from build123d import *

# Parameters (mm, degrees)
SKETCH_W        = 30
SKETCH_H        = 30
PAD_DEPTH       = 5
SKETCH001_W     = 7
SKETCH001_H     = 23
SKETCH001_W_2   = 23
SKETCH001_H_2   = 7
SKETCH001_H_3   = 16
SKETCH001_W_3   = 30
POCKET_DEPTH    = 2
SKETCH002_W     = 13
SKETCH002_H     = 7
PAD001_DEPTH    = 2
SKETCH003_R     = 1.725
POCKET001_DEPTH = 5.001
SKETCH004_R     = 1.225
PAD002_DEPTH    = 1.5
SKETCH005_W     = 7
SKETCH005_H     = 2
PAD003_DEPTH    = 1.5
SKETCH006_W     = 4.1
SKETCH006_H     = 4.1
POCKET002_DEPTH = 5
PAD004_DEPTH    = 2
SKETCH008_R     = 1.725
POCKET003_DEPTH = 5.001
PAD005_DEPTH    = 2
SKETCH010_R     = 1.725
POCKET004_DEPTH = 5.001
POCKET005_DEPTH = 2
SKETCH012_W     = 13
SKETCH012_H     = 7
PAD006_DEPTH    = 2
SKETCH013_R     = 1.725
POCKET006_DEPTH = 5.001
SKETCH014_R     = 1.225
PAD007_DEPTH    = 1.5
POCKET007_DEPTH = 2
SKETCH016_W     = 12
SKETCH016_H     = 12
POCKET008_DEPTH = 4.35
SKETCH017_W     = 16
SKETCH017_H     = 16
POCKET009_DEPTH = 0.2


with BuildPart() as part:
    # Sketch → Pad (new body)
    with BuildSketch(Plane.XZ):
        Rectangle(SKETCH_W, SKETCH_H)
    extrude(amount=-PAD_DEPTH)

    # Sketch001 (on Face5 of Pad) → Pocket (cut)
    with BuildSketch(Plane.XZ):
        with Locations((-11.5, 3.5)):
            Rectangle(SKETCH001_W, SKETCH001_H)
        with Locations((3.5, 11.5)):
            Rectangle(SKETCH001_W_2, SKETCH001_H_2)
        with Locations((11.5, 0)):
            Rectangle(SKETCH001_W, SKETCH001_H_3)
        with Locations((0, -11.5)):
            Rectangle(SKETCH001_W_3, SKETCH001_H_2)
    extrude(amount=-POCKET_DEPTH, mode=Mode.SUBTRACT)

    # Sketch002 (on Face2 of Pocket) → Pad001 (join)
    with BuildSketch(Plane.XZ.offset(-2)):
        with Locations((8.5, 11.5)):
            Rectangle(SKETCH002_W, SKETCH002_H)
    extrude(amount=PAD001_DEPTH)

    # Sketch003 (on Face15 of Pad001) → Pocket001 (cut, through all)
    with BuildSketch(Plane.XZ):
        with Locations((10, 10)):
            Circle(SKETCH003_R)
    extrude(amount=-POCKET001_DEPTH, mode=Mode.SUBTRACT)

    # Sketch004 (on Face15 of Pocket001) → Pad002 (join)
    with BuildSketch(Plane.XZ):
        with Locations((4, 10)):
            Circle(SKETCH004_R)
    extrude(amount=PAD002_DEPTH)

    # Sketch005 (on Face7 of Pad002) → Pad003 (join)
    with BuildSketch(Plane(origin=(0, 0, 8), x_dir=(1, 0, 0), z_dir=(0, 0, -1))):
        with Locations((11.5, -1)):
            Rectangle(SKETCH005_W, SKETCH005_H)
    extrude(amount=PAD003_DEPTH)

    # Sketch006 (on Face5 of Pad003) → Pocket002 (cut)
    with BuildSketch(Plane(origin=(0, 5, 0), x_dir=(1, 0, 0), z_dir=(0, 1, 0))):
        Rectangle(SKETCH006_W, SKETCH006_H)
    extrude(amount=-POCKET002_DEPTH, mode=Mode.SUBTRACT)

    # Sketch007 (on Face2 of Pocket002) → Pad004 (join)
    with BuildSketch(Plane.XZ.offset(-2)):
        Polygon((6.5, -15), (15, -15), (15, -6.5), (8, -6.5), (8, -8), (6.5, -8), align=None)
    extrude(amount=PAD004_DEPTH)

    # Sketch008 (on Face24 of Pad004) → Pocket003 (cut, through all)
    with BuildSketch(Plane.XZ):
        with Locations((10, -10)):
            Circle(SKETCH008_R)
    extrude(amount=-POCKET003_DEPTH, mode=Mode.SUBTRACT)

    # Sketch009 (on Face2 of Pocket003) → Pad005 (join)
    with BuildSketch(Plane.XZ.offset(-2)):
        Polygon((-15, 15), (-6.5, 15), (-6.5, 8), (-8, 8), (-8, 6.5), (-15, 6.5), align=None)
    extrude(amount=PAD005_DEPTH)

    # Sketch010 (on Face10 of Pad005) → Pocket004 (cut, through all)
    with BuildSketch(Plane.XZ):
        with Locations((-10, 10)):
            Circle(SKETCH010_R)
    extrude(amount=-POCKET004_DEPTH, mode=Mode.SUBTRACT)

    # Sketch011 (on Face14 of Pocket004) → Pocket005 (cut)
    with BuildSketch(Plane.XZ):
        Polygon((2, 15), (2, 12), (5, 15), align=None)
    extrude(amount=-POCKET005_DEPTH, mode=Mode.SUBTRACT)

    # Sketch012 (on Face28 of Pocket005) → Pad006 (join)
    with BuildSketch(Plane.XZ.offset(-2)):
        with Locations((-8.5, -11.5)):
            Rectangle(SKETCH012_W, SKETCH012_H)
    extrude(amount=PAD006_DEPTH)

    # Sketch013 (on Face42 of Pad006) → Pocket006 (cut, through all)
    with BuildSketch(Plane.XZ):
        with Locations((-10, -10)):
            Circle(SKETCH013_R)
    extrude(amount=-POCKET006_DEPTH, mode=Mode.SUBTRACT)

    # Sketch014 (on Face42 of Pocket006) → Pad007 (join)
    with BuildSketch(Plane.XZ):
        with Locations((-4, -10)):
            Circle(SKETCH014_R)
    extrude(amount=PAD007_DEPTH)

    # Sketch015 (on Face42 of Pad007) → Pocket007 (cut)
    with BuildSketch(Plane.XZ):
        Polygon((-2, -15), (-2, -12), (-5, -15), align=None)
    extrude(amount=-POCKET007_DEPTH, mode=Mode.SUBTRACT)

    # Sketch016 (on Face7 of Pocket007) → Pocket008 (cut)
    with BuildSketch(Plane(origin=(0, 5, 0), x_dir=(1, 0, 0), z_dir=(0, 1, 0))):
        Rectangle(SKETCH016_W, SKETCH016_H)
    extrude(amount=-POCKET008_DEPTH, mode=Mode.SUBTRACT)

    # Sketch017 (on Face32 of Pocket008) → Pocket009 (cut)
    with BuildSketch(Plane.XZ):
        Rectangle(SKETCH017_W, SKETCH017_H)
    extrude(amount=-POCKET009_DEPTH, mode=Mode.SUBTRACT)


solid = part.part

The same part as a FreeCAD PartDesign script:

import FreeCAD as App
import Part
import Sketcher
from FreeCAD import Vector
Q = App.Units.Quantity


def add_polygon(sketch, points):
    """Adds a closed chain of lines whose ends are joined by coincident constraints."""
    first, n = sketch.GeometryCount, len(points)
    for a, b in zip(points, points[1:] + points[:1]):
        sketch.addGeometry(Part.LineSegment(App.Vector(*a, 0), App.Vector(*b, 0)), False)
    for i in range(n):
        sketch.addConstraint(Sketcher.Constraint("Coincident", first + i, 2, first + (i + 1) % n, 1))

doc = App.newDocument("Part")
params = doc.addObject("Spreadsheet::Sheet", "Params")
for row, (alias, value) in enumerate([
    ("sketch1_width", "30 mm"),
    ("pad1_length", "5 mm"),
    ("sketch2_width", "30 mm"),
    ("sketch2_width2", "16 mm"),
    ("pocket1_length", "2 mm"),
    ("sketch3_width", "13 mm"),
    ("sketch3_height", "7 mm"),
    ("pad2_length", "2 mm"),
    ("sketch4_diameter", "3.45 mm"),
    ("sketch5_diameter", "2.45 mm"),
    ("pad3_length", "1.5 mm"),
    ("sketch6_width", "7 mm"),
    ("sketch6_height", "2 mm"),
    ("pad4_length", "1.5 mm"),
    ("sketch7_width", "4.1 mm"),
    ("pocket3_length", "5 mm"),
    ("sketch8_width", "7 mm"),
    ("sketch8_width2", "8.5 mm"),
    ("pad5_length", "2 mm"),
    ("sketch9_diameter", "3.45 mm"),
    ("sketch10_width", "7 mm"),
    ("sketch10_width2", "8.5 mm"),
    ("pad6_length", "2 mm"),
    ("sketch11_diameter", "3.45 mm"),
    ("sketch12_width", "3 mm"),
    ("pocket6_length", "2 mm"),
    ("sketch13_width", "13 mm"),
    ("sketch13_height", "7 mm"),
    ("pad7_length", "2 mm"),
    ("sketch14_diameter", "3.45 mm"),
    ("sketch15_diameter", "2.45 mm"),
    ("pad8_length", "1.5 mm"),
    ("sketch16_width", "3 mm"),
    ("pocket8_length", "2 mm"),
    ("sketch17_width", "12 mm"),
    ("pocket9_length", "4.35 mm"),
    ("sketch18_width", "16 mm"),
    ("pocket10_length", "0.2 mm"),
], start=1):
    params.set(f"A{row}", alias)
    params.set(f"B{row}", "=" + value)
    params.setAlias(f"B{row}", alias)

body = doc.addObject("PartDesign::Body", "Body")

sketch1 = body.newObject("Sketcher::SketchObject", "Sketch")
sketch1.AttachmentSupport = (doc.getObject("XZ_Plane"), [""])
sketch1.MapMode = "FlatFace"
add_polygon(sketch1, [(-15, 15), (-15, -15), (15, -15), (15, 15)])
sketch1.addConstraint(Sketcher.Constraint("Vertical", 0))
sketch1.addConstraint(Sketcher.Constraint("Horizontal", 1))
sketch1.addConstraint(Sketcher.Constraint("Vertical", 2))
sketch1.addConstraint(Sketcher.Constraint("Horizontal", 3))
sketch1.addConstraint(Sketcher.Constraint("Symmetric", 0, 2, 2, 2, -1, 1))
sketch1.addConstraint(Sketcher.Constraint("Equal", 3, 0))
sketch1.addConstraint(Sketcher.Constraint("DistanceX", 1, 1, 1, 2, Q("30 mm")))
sketch1.setExpression("Constraints[10]", "Params.sketch1_width")
pad1 = body.newObject("PartDesign::Pad", "Pad")
pad1.Profile = sketch1
pad1.setExpression("Length", "Params.pad1_length")
pad1.Reversed = True

sketch2 = body.newObject("Sketcher::SketchObject", "Sketch001")
sketch2.AttachmentSupport = (doc.getObject("XZ_Plane"), [""])
sketch2.MapMode = "FlatFace"
add_polygon(sketch2, [(-15, 15), (-15, -15), (15, -15), (15, 15)])
add_polygon(sketch2, [(-8, -8), (-8, 8), (8, 8), (8, -8)])
sketch2.addConstraint(Sketcher.Constraint("Vertical", 0))
sketch2.addConstraint(Sketcher.Constraint("Horizontal", 1))
sketch2.addConstraint(Sketcher.Constraint("Vertical", 2))
sketch2.addConstraint(Sketcher.Constraint("Horizontal", 3))
sketch2.addConstraint(Sketcher.Constraint("Vertical", 4))
sketch2.addConstraint(Sketcher.Constraint("Horizontal", 5))
sketch2.addConstraint(Sketcher.Constraint("Vertical", 6))
sketch2.addConstraint(Sketcher.Constraint("Horizontal", 7))
sketch2.addConstraint(Sketcher.Constraint("Symmetric", 0, 2, 2, 2, -1, 1))
sketch2.addConstraint(Sketcher.Constraint("Symmetric", 4, 2, 6, 2, -1, 1))
sketch2.addConstraint(Sketcher.Constraint("Equal", 3, 0))
sketch2.addConstraint(Sketcher.Constraint("Equal", 7, 4))
sketch2.addConstraint(Sketcher.Constraint("DistanceX", 1, 1, 1, 2, Q("30 mm")))
sketch2.addConstraint(Sketcher.Constraint("DistanceX", 5, 1, 5, 2, Q("16 mm")))
sketch2.setExpression("Constraints[20]", "Params.sketch2_width")
sketch2.setExpression("Constraints[21]", "Params.sketch2_width2")
pocket1 = body.newObject("PartDesign::Pocket", "Pocket")
pocket1.Profile = sketch2
pocket1.setExpression("Length", "Params.pocket1_length")

sketch3 = body.newObject("Sketcher::SketchObject", "Sketch002")
sketch3.AttachmentSupport = (doc.getObject("XZ_Plane"), [""])
sketch3.MapMode = "FlatFace"
sketch3.AttachmentOffset = App.Placement(Vector(0, 0, -2), App.Rotation())
add_polygon(sketch3, [(2, 15), (2, 8), (15, 8), (15, 15)])
sketch3.addConstraint(Sketcher.Constraint("Vertical", 0))
sketch3.addConstraint(Sketcher.Constraint("Horizontal", 1))
sketch3.addConstraint(Sketcher.Constraint("Vertical", 2))
sketch3.addConstraint(Sketcher.Constraint("Horizontal", 3))
sketch3.addConstraint(Sketcher.Constraint("DistanceX", 1, 1, 1, 2, Q("13 mm")))
sketch3.addConstraint(Sketcher.Constraint("DistanceY", 0, 2, 0, 1, Q("7 mm")))
sketch3.addConstraint(Sketcher.Constraint("DistanceX", -1, 1, 0, 2, Q("2 mm")))
sketch3.addConstraint(Sketcher.Constraint("DistanceY", -1, 1, 0, 2, Q("8 mm")))
sketch3.setExpression("Constraints[8]", "Params.sketch3_width")
sketch3.setExpression("Constraints[9]", "Params.sketch3_height")
pad2 = body.newObject("PartDesign::Pad", "Pad001")
pad2.Profile = sketch3
pad2.setExpression("Length", "Params.pad2_length")

sketch4 = body.newObject("Sketcher::SketchObject", "Sketch003")
sketch4.AttachmentSupport = (doc.getObject("XZ_Plane"), [""])
sketch4.MapMode = "FlatFace"
sketch4.addGeometry(Part.Circle(Vector(10, 10, 0), Vector(0, 0, 1), 1.7), False)
sketch4.addConstraint(Sketcher.Constraint("Diameter", 0, Q("3.45 mm")))
sketch4.addConstraint(Sketcher.Constraint("DistanceX", -1, 1, 0, 3, Q("10 mm")))
sketch4.addConstraint(Sketcher.Constraint("DistanceY", -1, 1, 0, 3, Q("10 mm")))
sketch4.setExpression("Constraints[0]", "Params.sketch4_diameter")
pocket2 = body.newObject("PartDesign::Pocket", "Pocket001")
pocket2.Profile = sketch4
pocket2.Type = "ThroughAll"

sketch5 = body.newObject("Sketcher::SketchObject", "Sketch004")
sketch5.AttachmentSupport = (doc.getObject("XZ_Plane"), [""])
sketch5.MapMode = "FlatFace"
sketch5.addGeometry(Part.Circle(Vector(4, 10, 0), Vector(0, 0, 1), 1.2), False)
sketch5.addConstraint(Sketcher.Constraint("Diameter", 0, Q("2.45 mm")))
sketch5.addConstraint(Sketcher.Constraint("DistanceX", -1, 1, 0, 3, Q("4 mm")))
sketch5.addConstraint(Sketcher.Constraint("DistanceY", -1, 1, 0, 3, Q("10 mm")))
sketch5.setExpression("Constraints[0]", "Params.sketch5_diameter")
pad3 = body.newObject("PartDesign::Pad", "Pad002")
pad3.Profile = sketch5
pad3.setExpression("Length", "Params.pad3_length")

sketch6 = body.newObject("Sketcher::SketchObject", "Sketch005")
sketch6.AttachmentSupport = (doc.getObject("XY_Plane"), [""])
sketch6.MapMode = "FlatFace"
sketch6.AttachmentOffset = App.Placement(Vector(0, 0, 8), App.Rotation())
add_polygon(sketch6, [(8, 0), (8, 2), (15, 2), (15, 0)])
sketch6.addConstraint(Sketcher.Constraint("Vertical", 0))
sketch6.addConstraint(Sketcher.Constraint("Horizontal", 1))
sketch6.addConstraint(Sketcher.Constraint("Vertical", 2))
sketch6.addConstraint(Sketcher.Constraint("Horizontal", 3))
sketch6.addConstraint(Sketcher.Constraint("PointOnObject", 2, 2, -1))
sketch6.addConstraint(Sketcher.Constraint("DistanceX", 1, 1, 1, 2, Q("7 mm")))
sketch6.addConstraint(Sketcher.Constraint("DistanceY", 0, 1, 0, 2, Q("2 mm")))
sketch6.addConstraint(Sketcher.Constraint("DistanceX", -1, 1, 0, 2, Q("8 mm")))
sketch6.setExpression("Constraints[9]", "Params.sketch6_width")
sketch6.setExpression("Constraints[10]", "Params.sketch6_height")
pad4 = body.newObject("PartDesign::Pad", "Pad003")
pad4.Profile = sketch6
pad4.setExpression("Length", "Params.pad4_length")
pad4.Reversed = True

sketch7 = body.newObject("Sketcher::SketchObject", "Sketch006")
sketch7.AttachmentSupport = (doc.getObject("XZ_Plane"), [""])
sketch7.MapMode = "FlatFace"
sketch7.AttachmentOffset = App.Placement(Vector(0, 0, -5), App.Rotation())
add_polygon(sketch7, [(-2, -2), (-2, 2), (2, 2), (2, -2)])
sketch7.addConstraint(Sketcher.Constraint("Vertical", 0))
sketch7.addConstraint(Sketcher.Constraint("Horizontal", 1))
sketch7.addConstraint(Sketcher.Constraint("Vertical", 2))
sketch7.addConstraint(Sketcher.Constraint("Horizontal", 3))
sketch7.addConstraint(Sketcher.Constraint("Symmetric", 0, 2, 2, 2, -1, 1))
sketch7.addConstraint(Sketcher.Constraint("Equal", 3, 0))
sketch7.addConstraint(Sketcher.Constraint("DistanceX", 1, 1, 1, 2, Q("4.1 mm")))
sketch7.setExpression("Constraints[10]", "Params.sketch7_width")
pocket3 = body.newObject("PartDesign::Pocket", "Pocket002")
pocket3.Profile = sketch7
pocket3.setExpression("Length", "Params.pocket3_length")
pocket3.Reversed = True

sketch8 = body.newObject("Sketcher::SketchObject", "Sketch007")
sketch8.AttachmentSupport = (doc.getObject("XZ_Plane"), [""])
sketch8.MapMode = "FlatFace"
sketch8.AttachmentOffset = App.Placement(Vector(0, 0, -2), App.Rotation())
add_polygon(sketch8, [(6.5, -15), (15, -15), (15, -6.5), (8, -6.5), (8, -8), (6.5, -8)])
sketch8.addConstraint(Sketcher.Constraint("Horizontal", 0))
sketch8.addConstraint(Sketcher.Constraint("Vertical", 1))
sketch8.addConstraint(Sketcher.Constraint("Horizontal", 2))
sketch8.addConstraint(Sketcher.Constraint("Vertical", 3))
sketch8.addConstraint(Sketcher.Constraint("Horizontal", 4))
sketch8.addConstraint(Sketcher.Constraint("Vertical", 5))
sketch8.addConstraint(Sketcher.Constraint("Equal", 0, 1))
sketch8.addConstraint(Sketcher.Constraint("Equal", 4, 3))
sketch8.addConstraint(Sketcher.Constraint("DistanceX", 2, 2, 2, 1, Q("7 mm")))
sketch8.addConstraint(Sketcher.Constraint("DistanceX", 0, 1, 0, 2, Q("8.5 mm")))
sketch8.addConstraint(Sketcher.Constraint("DistanceX", -1, 1, 0, 2, Q("15 mm")))
sketch8.addConstraint(Sketcher.Constraint("DistanceY", 0, 2, -1, 1, Q("15 mm")))
sketch8.setExpression("Constraints[14]", "Params.sketch8_width")
sketch8.setExpression("Constraints[15]", "Params.sketch8_width2")
pad5 = body.newObject("PartDesign::Pad", "Pad004")
pad5.Profile = sketch8
pad5.setExpression("Length", "Params.pad5_length")

sketch9 = body.newObject("Sketcher::SketchObject", "Sketch008")
sketch9.AttachmentSupport = (doc.getObject("XZ_Plane"), [""])
sketch9.MapMode = "FlatFace"
sketch9.addGeometry(Part.Circle(Vector(10, -10, 0), Vector(0, 0, 1), 1.7), False)
sketch9.addConstraint(Sketcher.Constraint("Diameter", 0, Q("3.45 mm")))
sketch9.addConstraint(Sketcher.Constraint("DistanceX", -1, 1, 0, 3, Q("10 mm")))
sketch9.addConstraint(Sketcher.Constraint("DistanceY", 0, 3, -1, 1, Q("10 mm")))
sketch9.setExpression("Constraints[0]", "Params.sketch9_diameter")
pocket4 = body.newObject("PartDesign::Pocket", "Pocket003")
pocket4.Profile = sketch9
pocket4.Type = "ThroughAll"

sketch10 = body.newObject("Sketcher::SketchObject", "Sketch009")
sketch10.AttachmentSupport = (doc.getObject("XZ_Plane"), [""])
sketch10.MapMode = "FlatFace"
sketch10.AttachmentOffset = App.Placement(Vector(0, 0, -2), App.Rotation())
add_polygon(sketch10, [(-6.5, 15), (-15, 15), (-15, 6.5), (-8, 6.5), (-8, 8), (-6.5, 8)])
sketch10.addConstraint(Sketcher.Constraint("Horizontal", 0))
sketch10.addConstraint(Sketcher.Constraint("Vertical", 1))
sketch10.addConstraint(Sketcher.Constraint("Horizontal", 2))
sketch10.addConstraint(Sketcher.Constraint("Vertical", 3))
sketch10.addConstraint(Sketcher.Constraint("Horizontal", 4))
sketch10.addConstraint(Sketcher.Constraint("Vertical", 5))
sketch10.addConstraint(Sketcher.Constraint("Equal", 0, 1))
sketch10.addConstraint(Sketcher.Constraint("Equal", 4, 3))
sketch10.addConstraint(Sketcher.Constraint("DistanceX", 2, 1, 2, 2, Q("7 mm")))
sketch10.addConstraint(Sketcher.Constraint("DistanceX", 0, 2, 0, 1, Q("8.5 mm")))
sketch10.addConstraint(Sketcher.Constraint("DistanceX", 0, 2, -1, 1, Q("15 mm")))
sketch10.addConstraint(Sketcher.Constraint("DistanceY", -1, 1, 0, 2, Q("15 mm")))
sketch10.setExpression("Constraints[14]", "Params.sketch10_width")
sketch10.setExpression("Constraints[15]", "Params.sketch10_width2")
pad6 = body.newObject("PartDesign::Pad", "Pad005")
pad6.Profile = sketch10
pad6.setExpression("Length", "Params.pad6_length")

sketch11 = body.newObject("Sketcher::SketchObject", "Sketch010")
sketch11.AttachmentSupport = (doc.getObject("XZ_Plane"), [""])
sketch11.MapMode = "FlatFace"
sketch11.addGeometry(Part.Circle(Vector(-10, 10, 0), Vector(0, 0, 1), 1.7), False)
sketch11.addConstraint(Sketcher.Constraint("Diameter", 0, Q("3.45 mm")))
sketch11.addConstraint(Sketcher.Constraint("DistanceX", 0, 3, -1, 1, Q("10 mm")))
sketch11.addConstraint(Sketcher.Constraint("DistanceY", -1, 1, 0, 3, Q("10 mm")))
sketch11.setExpression("Constraints[0]", "Params.sketch11_diameter")
pocket5 = body.newObject("PartDesign::Pocket", "Pocket004")
pocket5.Profile = sketch11
pocket5.Type = "ThroughAll"

sketch12 = body.newObject("Sketcher::SketchObject", "Sketch011")
sketch12.AttachmentSupport = (doc.getObject("XZ_Plane"), [""])
sketch12.MapMode = "FlatFace"
add_polygon(sketch12, [(2, 15), (2, 12), (5, 15)])
sketch12.addConstraint(Sketcher.Constraint("Vertical", 0))
sketch12.addConstraint(Sketcher.Constraint("Horizontal", 2))
sketch12.addConstraint(Sketcher.Constraint("Equal", 2, 0))
sketch12.addConstraint(Sketcher.Constraint("DistanceX", 2, 2, 2, 1, Q("3 mm")))
sketch12.addConstraint(Sketcher.Constraint("DistanceX", -1, 1, 0, 2, Q("2 mm")))
sketch12.addConstraint(Sketcher.Constraint("DistanceY", -1, 1, 0, 2, Q("12 mm")))
sketch12.setExpression("Constraints[6]", "Params.sketch12_width")
pocket6 = body.newObject("PartDesign::Pocket", "Pocket005")
pocket6.Profile = sketch12
pocket6.setExpression("Length", "Params.pocket6_length")

sketch13 = body.newObject("Sketcher::SketchObject", "Sketch012")
sketch13.AttachmentSupport = (doc.getObject("XZ_Plane"), [""])
sketch13.MapMode = "FlatFace"
sketch13.AttachmentOffset = App.Placement(Vector(0, 0, -2), App.Rotation())
add_polygon(sketch13, [(-15, -8), (-15, -15), (-2, -15), (-2, -8)])
sketch13.addConstraint(Sketcher.Constraint("Vertical", 0))
sketch13.addConstraint(Sketcher.Constraint("Horizontal", 1))
sketch13.addConstraint(Sketcher.Constraint("Vertical", 2))
sketch13.addConstraint(Sketcher.Constraint("Horizontal", 3))
sketch13.addConstraint(Sketcher.Constraint("DistanceX", 1, 1, 1, 2, Q("13 mm")))
sketch13.addConstraint(Sketcher.Constraint("DistanceY", 0, 2, 0, 1, Q("7 mm")))
sketch13.addConstraint(Sketcher.Constraint("DistanceX", 0, 2, -1, 1, Q("15 mm")))
sketch13.addConstraint(Sketcher.Constraint("DistanceY", 0, 2, -1, 1, Q("15 mm")))
sketch13.setExpression("Constraints[8]", "Params.sketch13_width")
sketch13.setExpression("Constraints[9]", "Params.sketch13_height")
pad7 = body.newObject("PartDesign::Pad", "Pad006")
pad7.Profile = sketch13
pad7.setExpression("Length", "Params.pad7_length")

sketch14 = body.newObject("Sketcher::SketchObject", "Sketch013")
sketch14.AttachmentSupport = (doc.getObject("XZ_Plane"), [""])
sketch14.MapMode = "FlatFace"
sketch14.addGeometry(Part.Circle(Vector(-10, -10, 0), Vector(0, 0, 1), 1.7), False)
sketch14.addConstraint(Sketcher.Constraint("Diameter", 0, Q("3.45 mm")))
sketch14.addConstraint(Sketcher.Constraint("DistanceX", 0, 3, -1, 1, Q("10 mm")))
sketch14.addConstraint(Sketcher.Constraint("DistanceY", 0, 3, -1, 1, Q("10 mm")))
sketch14.setExpression("Constraints[0]", "Params.sketch14_diameter")
pocket7 = body.newObject("PartDesign::Pocket", "Pocket006")
pocket7.Profile = sketch14
pocket7.Type = "ThroughAll"

sketch15 = body.newObject("Sketcher::SketchObject", "Sketch014")
sketch15.AttachmentSupport = (doc.getObject("XZ_Plane"), [""])
sketch15.MapMode = "FlatFace"
sketch15.addGeometry(Part.Circle(Vector(-4, -10, 0), Vector(0, 0, 1), 1.2), False)
sketch15.addConstraint(Sketcher.Constraint("Diameter", 0, Q("2.45 mm")))
sketch15.addConstraint(Sketcher.Constraint("DistanceX", 0, 3, -1, 1, Q("4 mm")))
sketch15.addConstraint(Sketcher.Constraint("DistanceY", 0, 3, -1, 1, Q("10 mm")))
sketch15.setExpression("Constraints[0]", "Params.sketch15_diameter")
pad8 = body.newObject("PartDesign::Pad", "Pad007")
pad8.Profile = sketch15
pad8.setExpression("Length", "Params.pad8_length")

sketch16 = body.newObject("Sketcher::SketchObject", "Sketch015")
sketch16.AttachmentSupport = (doc.getObject("XZ_Plane"), [""])
sketch16.MapMode = "FlatFace"
add_polygon(sketch16, [(-2, -15), (-2, -12), (-5, -15)])
sketch16.addConstraint(Sketcher.Constraint("Vertical", 0))
sketch16.addConstraint(Sketcher.Constraint("Horizontal", 2))
sketch16.addConstraint(Sketcher.Constraint("Equal", 2, 0))
sketch16.addConstraint(Sketcher.Constraint("DistanceX", 2, 1, 2, 2, Q("3 mm")))
sketch16.addConstraint(Sketcher.Constraint("DistanceX", 0, 2, -1, 1, Q("2 mm")))
sketch16.addConstraint(Sketcher.Constraint("DistanceY", 0, 2, -1, 1, Q("12 mm")))
sketch16.setExpression("Constraints[6]", "Params.sketch16_width")
pocket8 = body.newObject("PartDesign::Pocket", "Pocket007")
pocket8.Profile = sketch16
pocket8.setExpression("Length", "Params.pocket8_length")

sketch17 = body.newObject("Sketcher::SketchObject", "Sketch016")
sketch17.AttachmentSupport = (doc.getObject("XZ_Plane"), [""])
sketch17.MapMode = "FlatFace"
sketch17.AttachmentOffset = App.Placement(Vector(0, 0, -5), App.Rotation())
add_polygon(sketch17, [(-6, -6), (-6, 6), (6, 6), (6, -6)])
sketch17.addConstraint(Sketcher.Constraint("Vertical", 0))
sketch17.addConstraint(Sketcher.Constraint("Horizontal", 1))
sketch17.addConstraint(Sketcher.Constraint("Vertical", 2))
sketch17.addConstraint(Sketcher.Constraint("Horizontal", 3))
sketch17.addConstraint(Sketcher.Constraint("Symmetric", 0, 2, 2, 2, -1, 1))
sketch17.addConstraint(Sketcher.Constraint("Equal", 3, 0))
sketch17.addConstraint(Sketcher.Constraint("DistanceX", 1, 1, 1, 2, Q("12 mm")))
sketch17.setExpression("Constraints[10]", "Params.sketch17_width")
pocket9 = body.newObject("PartDesign::Pocket", "Pocket008")
pocket9.Profile = sketch17
pocket9.setExpression("Length", "Params.pocket9_length")
pocket9.Reversed = True

sketch18 = body.newObject("Sketcher::SketchObject", "Sketch017")
sketch18.AttachmentSupport = (doc.getObject("XZ_Plane"), [""])
sketch18.MapMode = "FlatFace"
add_polygon(sketch18, [(-8, 8), (-8, -8), (8, -8), (8, 8)])
sketch18.addConstraint(Sketcher.Constraint("Vertical", 0))
sketch18.addConstraint(Sketcher.Constraint("Horizontal", 1))
sketch18.addConstraint(Sketcher.Constraint("Vertical", 2))
sketch18.addConstraint(Sketcher.Constraint("Horizontal", 3))
sketch18.addConstraint(Sketcher.Constraint("Symmetric", 0, 2, 2, 2, -1, 1))
sketch18.addConstraint(Sketcher.Constraint("Equal", 3, 0))
sketch18.addConstraint(Sketcher.Constraint("DistanceX", 1, 1, 1, 2, Q("16 mm")))
sketch18.setExpression("Constraints[10]", "Params.sketch18_width")
pocket10 = body.newObject("PartDesign::Pocket", "Pocket009")
pocket10.Profile = sketch18
pocket10.setExpression("Length", "Params.pocket10_length")

doc.recompute()
